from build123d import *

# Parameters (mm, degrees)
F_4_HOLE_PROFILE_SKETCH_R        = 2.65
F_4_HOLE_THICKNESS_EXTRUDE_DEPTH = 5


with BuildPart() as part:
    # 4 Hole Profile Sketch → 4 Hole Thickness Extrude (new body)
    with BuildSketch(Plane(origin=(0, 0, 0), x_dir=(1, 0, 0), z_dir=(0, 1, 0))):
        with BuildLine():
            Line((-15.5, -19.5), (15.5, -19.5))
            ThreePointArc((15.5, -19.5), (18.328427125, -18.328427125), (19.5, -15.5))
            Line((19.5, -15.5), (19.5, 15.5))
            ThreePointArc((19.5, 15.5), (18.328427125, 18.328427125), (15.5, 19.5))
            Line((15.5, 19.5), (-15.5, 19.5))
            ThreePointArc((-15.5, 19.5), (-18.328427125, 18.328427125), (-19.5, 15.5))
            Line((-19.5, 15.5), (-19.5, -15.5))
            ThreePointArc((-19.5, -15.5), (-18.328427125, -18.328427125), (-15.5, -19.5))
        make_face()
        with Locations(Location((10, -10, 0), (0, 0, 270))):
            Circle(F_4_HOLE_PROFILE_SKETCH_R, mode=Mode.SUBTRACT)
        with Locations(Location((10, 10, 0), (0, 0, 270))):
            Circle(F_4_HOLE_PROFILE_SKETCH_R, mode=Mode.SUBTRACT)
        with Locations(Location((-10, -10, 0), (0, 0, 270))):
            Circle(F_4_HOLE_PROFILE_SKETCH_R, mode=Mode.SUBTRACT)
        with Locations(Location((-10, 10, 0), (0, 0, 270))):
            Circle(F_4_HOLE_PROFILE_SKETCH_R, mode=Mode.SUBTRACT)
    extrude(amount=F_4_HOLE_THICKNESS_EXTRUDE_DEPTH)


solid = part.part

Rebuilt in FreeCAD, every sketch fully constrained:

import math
import FreeCAD as App
import Part
import Sketcher

doc = App.newDocument("Part")
body = doc.addObject("PartDesign::Body", "Body")

sketch1 = body.newObject("Sketcher::SketchObject", "Sketch")
sketch1.AttachmentSupport = (doc.getObject("XZ_Plane"), [""])
sketch1.MapMode = "FlatFace"
sketch1.addGeometry(Part.LineSegment(App.Vector(-15.5, 19.5, 0), App.Vector(15.5, 19.5, 0)), False)
sketch1.addGeometry(Part.ArcOfCircle(Part.Circle(App.Vector(15.5, 15.5, 0), App.Vector(0, 0, 1), 4), math.radians(0), math.radians(90)), False)
sketch1.addGeometry(Part.LineSegment(App.Vector(19.5, 15.5, 0), App.Vector(19.5, -15.5, 0)), False)
sketch1.addGeometry(Part.ArcOfCircle(Part.Circle(App.Vector(15.5, -15.5, 0), App.Vector(0, 0, 1), 4), math.radians(-90), math.radians(0)), False)
sketch1.addGeometry(Part.LineSegment(App.Vector(15.5, -19.5, 0), App.Vector(-15.5, -19.5, 0)), False)
sketch1.addGeometry(Part.ArcOfCircle(Part.Circle(App.Vector(-15.5, -15.5, 0), App.Vector(0, 0, 1), 4), math.radians(180), math.radians(270)), False)
sketch1.addGeometry(Part.LineSegment(App.Vector(-19.5, -15.5, 0), App.Vector(-19.5, 15.5, 0)), False)
sketch1.addGeometry(Part.ArcOfCircle(Part.Circle(App.Vector(-15.5, 15.5, 0), App.Vector(0, 0, 1), 4), math.radians(90), math.radians(180)), False)
sketch1.addGeometry(Part.Circle(App.Vector(-10, 10, 0), App.Vector(0, 0, 1), 2.6), False)
sketch1.addGeometry(Part.Circle(App.Vector(10, 10, 0), App.Vector(0, 0, 1), 2.6), False)
sketch1.addGeometry(Part.Circle(App.Vector(-10, -10, 0), App.Vector(0, 0, 1), 2.6), False)
sketch1.addGeometry(Part.Circle(App.Vector(10, -10, 0), App.Vector(0, 0, 1), 2.6), False)
sketch1.addConstraint(Sketcher.Constraint("Tangent", 0, 2, 1, 2))
sketch1.addConstraint(Sketcher.Constraint("Tangent", 1, 1, 2, 1))
sketch1.addConstraint(Sketcher.Constraint("Tangent", 2, 2, 3, 2))
sketch1.addConstraint(Sketcher.Constraint("Tangent", 3, 1, 4, 1))
sketch1.addConstraint(Sketcher.Constraint("Tangent", 4, 2, 5, 2))
sketch1.addConstraint(Sketcher.Constraint("Tangent", 5, 1, 6, 1))
sketch1.addConstraint(Sketcher.Constraint("Tangent", 6, 2, 7, 2))
sketch1.addConstraint(Sketcher.Constraint("Tangent", 7, 1, 0, 1))
sketch1.addConstraint(Sketcher.Constraint("Horizontal", 0))
sketch1.addConstraint(Sketcher.Constraint("Vertical", 2))
sketch1.addConstraint(Sketcher.Constraint("Horizontal", 4))
sketch1.addConstraint(Sketcher.Constraint("Vertical", 6))
sketch1.addConstraint(Sketcher.Constraint("Equal", 1, 3))
sketch1.addConstraint(Sketcher.Constraint("Equal", 3, 5))
sketch1.addConstraint(Sketcher.Constraint("Equal", 5, 7))
sketch1.addConstraint(Sketcher.Constraint("Equal", 8, 9))
sketch1.addConstraint(Sketcher.Constraint("Equal", 9, 10))
sketch1.addConstraint(Sketcher.Constraint("Equal", 10, 11))
sketch1.addConstraint(Sketcher.Constraint("Symmetric", 1, 3, 5, 3, -1, 1))
sketch1.addConstraint(Sketcher.Constraint("Symmetric", 9, 3, 10, 3, -1, 1))
sketch1.addConstraint(Sketcher.Constraint("Symmetric", 8, 3, 11, 3, -1, 1))
sketch1.addConstraint(Sketcher.Constraint("Symmetric", 8, 3, 9, 3, -2))
sketch1.addConstraint(Sketcher.Constraint("Equal", 4, 2))
sketch1.addConstraint(Sketcher.Constraint("Radius", 1, 4.0))
sketch1.addConstraint(Sketcher.Constraint("Diameter", 8, 5.3))
sketch1.addConstraint(Sketcher.Constraint("DistanceX", 0, 1, 0, 2, 31.0))
sketch1.addConstraint(Sketcher.Constraint("DistanceX", 8, 3, -1, 1, 10.0))
sketch1.addConstraint(Sketcher.Constraint("DistanceY", -1, 1, 8, 3, 10.0))
pad1 = body.newObject("PartDesign::Pad", "Pad")
pad1.Profile = sketch1
pad1.Length = 5
pad1.Reversed = True

doc.recompute()
